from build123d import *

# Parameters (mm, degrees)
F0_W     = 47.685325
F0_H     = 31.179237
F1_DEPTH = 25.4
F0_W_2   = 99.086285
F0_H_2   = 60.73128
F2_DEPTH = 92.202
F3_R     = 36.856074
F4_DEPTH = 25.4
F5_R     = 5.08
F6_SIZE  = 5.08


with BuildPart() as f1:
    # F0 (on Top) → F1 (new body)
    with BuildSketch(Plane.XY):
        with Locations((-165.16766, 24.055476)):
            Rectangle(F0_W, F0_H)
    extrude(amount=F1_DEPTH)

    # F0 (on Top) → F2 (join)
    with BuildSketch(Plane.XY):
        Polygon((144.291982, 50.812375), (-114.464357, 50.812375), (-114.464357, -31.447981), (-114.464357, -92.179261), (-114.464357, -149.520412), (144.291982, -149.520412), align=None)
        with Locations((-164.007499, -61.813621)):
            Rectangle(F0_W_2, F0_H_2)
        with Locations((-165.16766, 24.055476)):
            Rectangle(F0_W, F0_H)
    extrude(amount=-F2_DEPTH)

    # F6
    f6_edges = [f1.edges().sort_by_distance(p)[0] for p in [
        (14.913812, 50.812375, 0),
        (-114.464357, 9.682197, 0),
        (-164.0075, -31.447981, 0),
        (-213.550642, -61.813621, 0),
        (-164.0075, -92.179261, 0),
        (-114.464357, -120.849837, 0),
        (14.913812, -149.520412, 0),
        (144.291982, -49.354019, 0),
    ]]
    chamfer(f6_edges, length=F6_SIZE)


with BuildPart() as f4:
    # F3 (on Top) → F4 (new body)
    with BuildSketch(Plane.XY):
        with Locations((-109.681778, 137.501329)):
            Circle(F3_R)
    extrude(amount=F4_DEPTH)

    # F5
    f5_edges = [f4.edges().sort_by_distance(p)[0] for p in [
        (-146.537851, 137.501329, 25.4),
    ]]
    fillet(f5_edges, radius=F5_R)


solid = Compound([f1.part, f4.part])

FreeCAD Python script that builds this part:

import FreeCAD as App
import Part
import Sketcher
Q = App.Units.Quantity


def edges_at(feature, points):
    """Names of the edges that pass closest to the given points."""
    edges = feature.Shape.Edges
    near = lambda p: min(range(len(edges)), key=lambda i: edges[i].distToShape(Part.Vertex(*p))[0])
    return sorted({f"Edge{near(p) + 1}" for p in points})


def add_polygon(sketch, points):
    """Adds a closed chain of lines whose ends are joined by coincident constraints."""
    first, n = sketch.GeometryCount, len(points)
    for a, b in zip(points, points[1:] + points[:1]):
        sketch.addGeometry(Part.LineSegment(App.Vector(*a, 0), App.Vector(*b, 0)), False)
    for i in range(n):
        sketch.addConstraint(Sketcher.Constraint("Coincident", first + i, 2, first + (i + 1) % n, 1))

doc = App.newDocument("Part")
params = doc.addObject("Spreadsheet::Sheet", "Params")
for row, (alias, value) in enumerate([
    ("pad1_length", "1 in"),
    ("pad2_length", "3.63 in"),
    ("chamfer_size", "0.2 in"),
    ("pad3_length", "1 in"),
    ("fillet_radius", "0.2 in"),
], start=1):
    params.set(f"A{row}", alias)
    params.set(f"B{row}", "=" + value)
    params.setAlias(f"B{row}", alias)

body = doc.addObject("PartDesign::Body", "Body")
body.AllowCompound = True

# Sketch on XY plane
sketch1 = body.newObject("Sketcher::SketchObject", "Sketch")
sketch1.AttachmentSupport = (doc.getObject("XY_Plane"), [""])
sketch1.MapMode = "FlatFace"
add_polygon(sketch1, [(-189, 40), (-189, 8), (-141, 8), (-141, 40)])  # lines 0-3
sketch1.addConstraint(Sketcher.Constraint("Vertical", 0))
sketch1.addConstraint(Sketcher.Constraint("Horizontal", 1))
sketch1.addConstraint(Sketcher.Constraint("Vertical", 2))
sketch1.addConstraint(Sketcher.Constraint("Horizontal", 3))
sketch1.addConstraint(Sketcher.Constraint("DistanceX", 1, 1, 1, 2, Q("47.685325 mm")))
sketch1.addConstraint(Sketcher.Constraint("DistanceY", 0, 2, 0, 1, Q("31.179237 mm")))
sketch1.addConstraint(Sketcher.Constraint("DistanceX", 0, 2, -1, 1, Q("189.010323 mm")))
sketch1.addConstraint(Sketcher.Constraint("DistanceY", -1, 1, 0, 2, Q("8.465858 mm")))
pad1 = body.newObject("PartDesign::Pad", "Pad")
pad1.Profile = sketch1
pad1.setExpression("Length", "Params.pad1_length")

# Sketch on XY plane
sketch2 = body.newObject("Sketcher::SketchObject", "Sketch001")
sketch2.AttachmentSupport = (doc.getObject("XY_Plane"), [""])
sketch2.MapMode = "FlatFace"
add_polygon(sketch2, [(144, -150), (144, 51), (-114, 51), (-114, -31), (-214, -31), (-214, -92), (-114, -92), (-114, -150)])  # lines 0-7
add_polygon(sketch2, [(-189, 40), (-189, 8), (-141, 8), (-141, 40)])  # lines 8-11
sketch2.addConstraint(Sketcher.Constraint("Vertical", 0))
sketch2.addConstraint(Sketcher.Constraint("Horizontal", 1))
sketch2.addConstraint(Sketcher.Constraint("Vertical", 2))
sketch2.addConstraint(Sketcher.Constraint("Horizontal", 3))
sketch2.addConstraint(Sketcher.Constraint("Vertical", 4))
sketch2.addConstraint(Sketcher.Constraint("Horizontal", 5))
sketch2.addConstraint(Sketcher.Constraint("Vertical", 6))
sketch2.addConstraint(Sketcher.Constraint("Horizontal", 7))
sketch2.addConstraint(Sketcher.Constraint("Vertical", 8))
sketch2.addConstraint(Sketcher.Constraint("Horizontal", 9))
sketch2.addConstraint(Sketcher.Constraint("Vertical", 10))
sketch2.addConstraint(Sketcher.Constraint("Horizontal", 11))
sketch2.addConstraint(Sketcher.Constraint("Vertical", 2, 2, 5, 2))
sketch2.addConstraint(Sketcher.Constraint("DistanceX", 1, 2, 1, 1, Q("258.756339 mm")))
sketch2.addConstraint(Sketcher.Constraint("DistanceY", 4, 2, 4, 1, Q("60.73128 mm")))
sketch2.addConstraint(Sketcher.Constraint("DistanceY", 6, 2, 6, 1, Q("57.341151 mm")))
sketch2.addConstraint(Sketcher.Constraint("DistanceX", 3, 2, 3, 1, Q("99.086285 mm")))
sketch2.addConstraint(Sketcher.Constraint("DistanceX", 9, 1, 9, 2, Q("47.685325 mm")))
sketch2.addConstraint(Sketcher.Constraint("DistanceY", 0, 1, 0, 2, Q("200.332787 mm")))
sketch2.addConstraint(Sketcher.Constraint("DistanceY", 8, 2, 8, 1, Q("31.179237 mm")))
sketch2.addConstraint(Sketcher.Constraint("DistanceX", -1, 1, 0, 2, Q("144.291982 mm")))
sketch2.addConstraint(Sketcher.Constraint("DistanceY", 2, 2, -1, 1, Q("31.447981 mm")))
sketch2.addConstraint(Sketcher.Constraint("DistanceX", 3, 2, 8, 2, Q("24.540319 mm")))
sketch2.addConstraint(Sketcher.Constraint("DistanceY", 3, 2, 8, 2, Q("39.913838 mm")))
pad2 = body.newObject("PartDesign::Pad", "Pad001")
pad2.Profile = sketch2
pad2.setExpression("Length", "Params.pad2_length")
pad2.Reversed = True
doc.recompute()

chamfer = body.newObject("PartDesign::Chamfer", "Chamfer")
chamfer.Base = (pad2, edges_at(pad2, [
    (14.914, 50.812, 0),
    (-114.464, 9.682, 0),
    (-164.007, -31.448, 0),
    (-213.551, -61.814, 0),
    (-164.007, -92.179, 0),
    (-114.464, -120.85, 0),
    (14.914, -149.52, 0),
    (144.292, -49.354, 0),
]))
chamfer.setExpression("Size", "Params.chamfer_size")
body2 = doc.addObject("PartDesign::Body", "Body001")

# Sketch on XY plane
sketch3 = body2.newObject("Sketcher::SketchObject", "Sketch002")
sketch3.AttachmentSupport = (doc.getObject("XY_Plane001"), [""])
sketch3.MapMode = "FlatFace"
sketch3.addGeometry(Part.Circle(App.Vector(-110, 138, 0), App.Vector(0, 0, 1), 37), False)
sketch3.addConstraint(Sketcher.Constraint("Diameter", 0, Q("73.712148 mm")))
sketch3.addConstraint(Sketcher.Constraint("DistanceY", -1, 1, 0, 3, Q("137.501329 mm")))
sketch3.addConstraint(Sketcher.Constraint("DistanceX", 0, 3, -1, 1, Q("109.681778 mm")))
pad3 = body2.newObject("PartDesign::Pad", "Pad002")
pad3.Profile = sketch3
pad3.setExpression("Length", "Params.pad3_length")
doc.recompute()

fillet = body2.newObject("PartDesign::Fillet", "Fillet")
fillet.Base = (pad3, edges_at(pad3, [(-146.538, 137.501, 25.4)]))
fillet.setExpression("Radius", "Params.fillet_radius")

doc.recompute()
